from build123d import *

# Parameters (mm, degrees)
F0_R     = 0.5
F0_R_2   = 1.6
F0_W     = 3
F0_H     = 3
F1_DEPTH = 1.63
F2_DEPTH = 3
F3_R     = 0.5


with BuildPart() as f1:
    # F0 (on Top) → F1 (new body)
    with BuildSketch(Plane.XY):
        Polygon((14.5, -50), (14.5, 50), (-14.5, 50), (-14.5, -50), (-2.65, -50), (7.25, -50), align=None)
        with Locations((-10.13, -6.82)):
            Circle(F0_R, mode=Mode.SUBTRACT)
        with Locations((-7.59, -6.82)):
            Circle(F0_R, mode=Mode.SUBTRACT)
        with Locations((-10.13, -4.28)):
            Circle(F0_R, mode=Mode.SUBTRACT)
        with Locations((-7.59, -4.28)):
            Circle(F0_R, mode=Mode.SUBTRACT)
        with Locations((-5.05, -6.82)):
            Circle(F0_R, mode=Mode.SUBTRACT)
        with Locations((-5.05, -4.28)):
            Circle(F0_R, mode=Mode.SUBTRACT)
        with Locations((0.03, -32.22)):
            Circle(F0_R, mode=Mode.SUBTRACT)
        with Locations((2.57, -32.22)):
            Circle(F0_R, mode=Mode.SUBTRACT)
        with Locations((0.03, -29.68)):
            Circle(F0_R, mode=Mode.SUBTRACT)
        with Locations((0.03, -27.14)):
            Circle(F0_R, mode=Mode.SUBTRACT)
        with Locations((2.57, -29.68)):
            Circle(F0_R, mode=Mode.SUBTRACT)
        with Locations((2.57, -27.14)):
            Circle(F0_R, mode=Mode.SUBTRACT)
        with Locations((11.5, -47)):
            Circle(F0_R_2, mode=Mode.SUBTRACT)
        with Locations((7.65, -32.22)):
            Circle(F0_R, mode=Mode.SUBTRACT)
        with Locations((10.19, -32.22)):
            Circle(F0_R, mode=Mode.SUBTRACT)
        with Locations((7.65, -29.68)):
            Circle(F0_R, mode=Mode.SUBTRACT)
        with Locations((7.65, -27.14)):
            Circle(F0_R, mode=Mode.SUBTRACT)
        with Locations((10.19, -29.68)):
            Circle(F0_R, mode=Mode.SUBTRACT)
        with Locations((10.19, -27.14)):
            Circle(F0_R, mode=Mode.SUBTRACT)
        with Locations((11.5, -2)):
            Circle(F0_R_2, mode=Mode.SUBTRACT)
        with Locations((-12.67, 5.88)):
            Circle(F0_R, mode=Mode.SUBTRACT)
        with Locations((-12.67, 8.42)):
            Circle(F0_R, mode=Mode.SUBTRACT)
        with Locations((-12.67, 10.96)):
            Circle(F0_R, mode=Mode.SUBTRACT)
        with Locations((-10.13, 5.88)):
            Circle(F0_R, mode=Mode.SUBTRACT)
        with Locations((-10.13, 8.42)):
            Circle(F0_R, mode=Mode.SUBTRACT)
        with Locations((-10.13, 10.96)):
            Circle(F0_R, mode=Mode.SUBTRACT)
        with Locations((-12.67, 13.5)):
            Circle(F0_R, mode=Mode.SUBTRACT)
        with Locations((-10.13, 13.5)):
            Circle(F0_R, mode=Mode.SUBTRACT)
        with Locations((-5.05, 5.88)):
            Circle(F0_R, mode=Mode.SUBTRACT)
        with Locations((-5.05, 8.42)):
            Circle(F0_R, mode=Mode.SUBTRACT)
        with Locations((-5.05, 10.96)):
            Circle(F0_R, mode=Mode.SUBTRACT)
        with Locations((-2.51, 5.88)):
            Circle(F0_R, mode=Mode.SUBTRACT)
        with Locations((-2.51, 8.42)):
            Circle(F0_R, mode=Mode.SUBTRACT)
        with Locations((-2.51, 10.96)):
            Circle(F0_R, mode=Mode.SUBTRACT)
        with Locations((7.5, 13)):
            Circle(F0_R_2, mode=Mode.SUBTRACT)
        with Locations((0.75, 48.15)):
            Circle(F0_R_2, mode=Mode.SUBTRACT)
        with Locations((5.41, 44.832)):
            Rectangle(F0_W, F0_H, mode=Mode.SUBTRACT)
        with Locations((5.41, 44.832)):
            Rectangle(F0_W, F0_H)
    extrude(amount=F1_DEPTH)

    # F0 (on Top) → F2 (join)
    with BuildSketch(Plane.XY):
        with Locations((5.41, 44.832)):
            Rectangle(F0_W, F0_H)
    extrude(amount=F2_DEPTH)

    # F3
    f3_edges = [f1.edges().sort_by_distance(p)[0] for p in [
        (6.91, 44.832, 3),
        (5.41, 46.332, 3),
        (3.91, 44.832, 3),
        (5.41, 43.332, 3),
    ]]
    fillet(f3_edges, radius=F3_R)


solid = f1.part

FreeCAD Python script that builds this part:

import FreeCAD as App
import Part
import Sketcher
Q = App.Units.Quantity


def edges_at(feature, points):
    """Names of the edges that pass closest to the given points."""
    edges = feature.Shape.Edges
    near = lambda p: min(range(len(edges)), key=lambda i: edges[i].distToShape(Part.Vertex(*p))[0])
    return sorted({f"Edge{near(p) + 1}" for p in points})


def add_polygon(sketch, points):
    """Adds a closed chain of lines whose ends are joined by coincident constraints."""
    first, n = sketch.GeometryCount, len(points)
    for a, b in zip(points, points[1:] + points[:1]):
        sketch.addGeometry(Part.LineSegment(App.Vector(*a, 0), App.Vector(*b, 0)), False)
    for i in range(n):
        sketch.addConstraint(Sketcher.Constraint("Coincident", first + i, 2, first + (i + 1) % n, 1))

doc = App.newDocument("Part")
body = doc.addObject("PartDesign::Body", "Body")

sketch1 = body.newObject("Sketcher::SketchObject", "Sketch")
sketch1.AttachmentSupport = (doc.getObject("XY_Plane"), [""])
sketch1.MapMode = "FlatFace"
add_polygon(sketch1, [(14.5, -50), (14.5, 50), (-14.5, 50), (-14.5, -50)])
sketch1.addGeometry(Part.Circle(App.Vector(-10.1, -6.8, 0), App.Vector(0, 0, 1), 0.5), False)
sketch1.addGeometry(Part.Circle(App.Vector(-10.1, -4.3, 0), App.Vector(0, 0, 1), 0.5), False)
sketch1.addGeometry(Part.Circle(App.Vector(-7.6, -6.8, 0), App.Vector(0, 0, 1), 0.5), False)
sketch1.addGeometry(Part.Circle(App.Vector(-7.6, -4.3, 0), App.Vector(0, 0, 1), 0.5), False)
sketch1.addGeometry(Part.Circle(App.Vector(-5, -6.8, 0), App.Vector(0, 0, 1), 0.5), False)
sketch1.addGeometry(Part.Circle(App.Vector(-5, -4.3, 0), App.Vector(0, 0, 1), 0.5), False)
sketch1.addGeometry(Part.Circle(App.Vector(0, -32.2, 0), App.Vector(0, 0, 1), 0.5), False)
sketch1.addGeometry(Part.Circle(App.Vector(2.6, -32.2, 0), App.Vector(0, 0, 1), 0.5), False)
sketch1.addGeometry(Part.Circle(App.Vector(0, -29.7, 0), App.Vector(0, 0, 1), 0.5), False)
sketch1.addGeometry(Part.Circle(App.Vector(0, -27.1, 0), App.Vector(0, 0, 1), 0.5), False)
sketch1.addGeometry(Part.Circle(App.Vector(2.6, -29.7, 0), App.Vector(0, 0, 1), 0.5), False)
sketch1.addGeometry(Part.Circle(App.Vector(2.6, -27.1, 0), App.Vector(0, 0, 1), 0.5), False)
sketch1.addGeometry(Part.Circle(App.Vector(11.5, -47, 0), App.Vector(0, 0, 1), 1.6), False)
sketch1.addGeometry(Part.Circle(App.Vector(7.7, -32.2, 0), App.Vector(0, 0, 1), 0.5), False)
sketch1.addGeometry(Part.Circle(App.Vector(7.7, -29.7, 0), App.Vector(0, 0, 1), 0.5), False)
sketch1.addGeometry(Part.Circle(App.Vector(7.7, -27.1, 0), App.Vector(0, 0, 1), 0.5), False)
sketch1.addGeometry(Part.Circle(App.Vector(10.2, -32.2, 0), App.Vector(0, 0, 1), 0.5), False)
sketch1.addGeometry(Part.Circle(App.Vector(10.2, -29.7, 0), App.Vector(0, 0, 1), 0.5), False)
sketch1.addGeometry(Part.Circle(App.Vector(10.2, -27.1, 0), App.Vector(0, 0, 1), 0.5), False)
sketch1.addGeometry(Part.Circle(App.Vector(11.5, -2, 0), App.Vector(0, 0, 1), 1.6), False)
sketch1.addGeometry(Part.Circle(App.Vector(-12.7, 5.9, 0), App.Vector(0, 0, 1), 0.5), False)
sketch1.addGeometry(Part.Circle(App.Vector(-10.1, 5.9, 0), App.Vector(0, 0, 1), 0.5), False)
sketch1.addGeometry(Part.Circle(App.Vector(-12.7, 8.4, 0), App.Vector(0, 0, 1), 0.5), False)
sketch1.addGeometry(Part.Circle(App.Vector(-12.7, 11, 0), App.Vector(0, 0, 1), 0.5), False)
sketch1.addGeometry(Part.Circle(App.Vector(-10.1, 8.4, 0), App.Vector(0, 0, 1), 0.5), False)
sketch1.addGeometry(Part.Circle(App.Vector(-10.1, 11, 0), App.Vector(0, 0, 1), 0.5), False)
sketch1.addGeometry(Part.Circle(App.Vector(-12.7, 13.5, 0), App.Vector(0, 0, 1), 0.5), False)
sketch1.addGeometry(Part.Circle(App.Vector(-10.1, 13.5, 0), App.Vector(0, 0, 1), 0.5), False)
sketch1.addGeometry(Part.Circle(App.Vector(-5, 5.9, 0), App.Vector(0, 0, 1), 0.5), False)
sketch1.addGeometry(Part.Circle(App.Vector(-5, 8.4, 0), App.Vector(0, 0, 1), 0.5), False)
sketch1.addGeometry(Part.Circle(App.Vector(-5, 11, 0), App.Vector(0, 0, 1), 0.5), False)
sketch1.addGeometry(Part.Circle(App.Vector(-2.5, 5.9, 0), App.Vector(0, 0, 1), 0.5), False)
sketch1.addGeometry(Part.Circle(App.Vector(-2.5, 8.4, 0), App.Vector(0, 0, 1), 0.5), False)
sketch1.addGeometry(Part.Circle(App.Vector(-2.5, 11, 0), App.Vector(0, 0, 1), 0.5), False)
sketch1.addGeometry(Part.Circle(App.Vector(7.5, 13, 0), App.Vector(0, 0, 1), 1.6), False)
sketch1.addGeometry(Part.Circle(App.Vector(0.8, 48.1, 0), App.Vector(0, 0, 1), 1.6), False)
sketch1.addConstraint(Sketcher.Constraint("Vertical", 0))
sketch1.addConstraint(Sketcher.Constraint("Horizontal", 1))
sketch1.addConstraint(Sketcher.Constraint("Vertical", 2))
sketch1.addConstraint(Sketcher.Constraint("Horizontal", 3))
sketch1.addConstraint(Sketcher.Constraint("Equal", 4, 5))
sketch1.addConstraint(Sketcher.Constraint("Equal", 5, 6))
sketch1.addConstraint(Sketcher.Constraint("Equal", 6, 7))
sketch1.addConstraint(Sketcher.Constraint("Equal", 7, 8))
sketch1.addConstraint(Sketcher.Constraint("Equal", 8, 9))
sketch1.addConstraint(Sketcher.Constraint("Equal", 9, 10))
sketch1.addConstraint(Sketcher.Constraint("Equal", 10, 11))
sketch1.addConstraint(Sketcher.Constraint("Equal", 11, 12))
sketch1.addConstraint(Sketcher.Constraint("Equal", 12, 13))
sketch1.addConstraint(Sketcher.Constraint("Equal", 13, 14))
sketch1.addConstraint(Sketcher.Constraint("Equal", 14, 15))
sketch1.addConstraint(Sketcher.Constraint("Equal", 15, 17))
sketch1.addConstraint(Sketcher.Constraint("Equal", 17, 18))
sketch1.addConstraint(Sketcher.Constraint("Equal", 18, 19))
sketch1.addConstraint(Sketcher.Constraint("Equal", 19, 20))
sketch1.addConstraint(Sketcher.Constraint("Equal", 20, 21))
sketch1.addConstraint(Sketcher.Constraint("Equal", 21, 22))
sketch1.addConstraint(Sketcher.Constraint("Equal", 16, 23))
sketch1.addConstraint(Sketcher.Constraint("Equal", 22, 24))
sketch1.addConstraint(Sketcher.Constraint("Equal", 24, 25))
sketch1.addConstraint(Sketcher.Constraint("Equal", 25, 26))
sketch1.addConstraint(Sketcher.Constraint("Equal", 26, 27))
sketch1.addConstraint(Sketcher.Constraint("Equal", 27, 28))
sketch1.addConstraint(Sketcher.Constraint("Equal", 28, 29))
sketch1.addConstraint(Sketcher.Constraint("Equal", 29, 30))
sketch1.addConstraint(Sketcher.Constraint("Equal", 30, 31))
sketch1.addConstraint(Sketcher.Constraint("Equal", 31, 32))
sketch1.addConstraint(Sketcher.Constraint("Equal", 32, 33))
sketch1.addConstraint(Sketcher.Constraint("Equal", 33, 34))
sketch1.addConstraint(Sketcher.Constraint("Equal", 34, 35))
sketch1.addConstraint(Sketcher.Constraint("Equal", 35, 36))
sketch1.addConstraint(Sketcher.Constraint("Equal", 36, 37))
sketch1.addConstraint(Sketcher.Constraint("Equal", 23, 38))
sketch1.addConstraint(Sketcher.Constraint("Equal", 38, 39))
sketch1.addConstraint(Sketcher.Constraint("Symmetric", 0, 2, 2, 2, -1, 1))
sketch1.addConstraint(Sketcher.Constraint("Horizontal", 4, 3, 6, 3))
sketch1.addConstraint(Sketcher.Constraint("Horizontal", 5, 3, 7, 3))
sketch1.addConstraint(Sketcher.Constraint("Horizontal", 6, 3, 8, 3))
sketch1.addConstraint(Sketcher.Constraint("Horizontal", 7, 3, 9, 3))
sketch1.addConstraint(Sketcher.Constraint("Horizontal", 10, 3, 11, 3))
sketch1.addConstraint(Sketcher.Constraint("Horizontal", 12, 3, 14, 3))
sketch1.addConstraint(Sketcher.Constraint("Horizontal", 13, 3, 15, 3))
sketch1.addConstraint(Sketcher.Constraint("Horizontal", 11, 3, 17, 3))
sketch1.addConstraint(Sketcher.Constraint("Horizontal", 14, 3, 18, 3))
sketch1.addConstraint(Sketcher.Constraint("Horizontal", 15, 3, 19, 3))
sketch1.addConstraint(Sketcher.Constraint("Horizontal", 17, 3, 20, 3))
sketch1.addConstraint(Sketcher.Constraint("Horizontal", 18, 3, 21, 3))
sketch1.addConstraint(Sketcher.Constraint("Horizontal", 19, 3, 22, 3))
sketch1.addConstraint(Sketcher.Constraint("Horizontal", 24, 3, 25, 3))
sketch1.addConstraint(Sketcher.Constraint("Horizontal", 26, 3, 28, 3))
sketch1.addConstraint(Sketcher.Constraint("Horizontal", 27, 3, 29, 3))
sketch1.addConstraint(Sketcher.Constraint("Horizontal", 30, 3, 31, 3))
sketch1.addConstraint(Sketcher.Constraint("Horizontal", 25, 3, 32, 3))
sketch1.addConstraint(Sketcher.Constraint("Horizontal", 28, 3, 33, 3))
sketch1.addConstraint(Sketcher.Constraint("Horizontal", 29, 3, 34, 3))
sketch1.addConstraint(Sketcher.Constraint("Horizontal", 32, 3, 35, 3))
sketch1.addConstraint(Sketcher.Constraint("Horizontal", 33, 3, 36, 3))
sketch1.addConstraint(Sketcher.Constraint("Horizontal", 34, 3, 37, 3))
sketch1.addConstraint(Sketcher.Constraint("Vertical", 4, 3, 5, 3))
sketch1.addConstraint(Sketcher.Constraint("Vertical", 6, 3, 7, 3))
sketch1.addConstraint(Sketcher.Constraint("Vertical", 8, 3, 9, 3))
sketch1.addConstraint(Sketcher.Constraint("Vertical", 10, 3, 12, 3))
sketch1.addConstraint(Sketcher.Constraint("Vertical", 12, 3, 13, 3))
sketch1.addConstraint(Sketcher.Constraint("Vertical", 11, 3, 14, 3))
sketch1.addConstraint(Sketcher.Constraint("Vertical", 14, 3, 15, 3))
sketch1.addConstraint(Sketcher.Constraint("Vertical", 17, 3, 18, 3))
sketch1.addConstraint(Sketcher.Constraint("Vertical", 18, 3, 19, 3))
sketch1.addConstraint(Sketcher.Constraint("Vertical", 20, 3, 21, 3))
sketch1.addConstraint(Sketcher.Constraint("Vertical", 21, 3, 22, 3))
sketch1.addConstraint(Sketcher.Constraint("Vertical", 16, 3, 23, 3))
sketch1.addConstraint(Sketcher.Constraint("Vertical", 5, 3, 25, 3))
sketch1.addConstraint(Sketcher.Constraint("Vertical", 24, 3, 26, 3))
sketch1.addConstraint(Sketcher.Constraint("Vertical", 26, 3, 27, 3))
sketch1.addConstraint(Sketcher.Constraint("Vertical", 25, 3, 28, 3))
sketch1.addConstraint(Sketcher.Constraint("Vertical", 28, 3, 29, 3))
sketch1.addConstraint(Sketcher.Constraint("Vertical", 27, 3, 30, 3))
sketch1.addConstraint(Sketcher.Constraint("Vertical", 29, 3, 31, 3))
sketch1.addConstraint(Sketcher.Constraint("Vertical", 9, 3, 32, 3))
sketch1.addConstraint(Sketcher.Constraint("Vertical", 32, 3, 33, 3))
sketch1.addConstraint(Sketcher.Constraint("Vertical", 33, 3, 34, 3))
sketch1.addConstraint(Sketcher.Constraint("Vertical", 35, 3, 36, 3))
sketch1.addConstraint(Sketcher.Constraint("Vertical", 36, 3, 37, 3))
sketch1.addConstraint(Sketcher.Constraint("Diameter", 4, Q("1 mm")))
sketch1.addConstraint(Sketcher.Constraint("Diameter", 16, Q("3.2 mm")))
sketch1.addConstraint(Sketcher.Constraint("DistanceX", 1, 2, 1, 1, Q("29 mm")))
sketch1.addConstraint(Sketcher.Constraint("DistanceY", 0, 1, 0, 2, Q("100 mm")))
sketch1.addConstraint(Sketcher.Constraint("DistanceY", 16, 3, -1, 1, Q("47 mm")))
sketch1.addConstraint(Sketcher.Constraint("DistanceY", 23, 3, -1, 1, Q("2 mm")))
sketch1.addConstraint(Sketcher.Constraint("DistanceY", -1, 1, 38, 3, Q("13 mm")))
sketch1.addConstraint(Sketcher.Constraint("DistanceX", 38, 3, 0, 2, Q("7 mm")))
sketch1.addConstraint(Sketcher.Constraint("DistanceX", 2, 2, 16, 3, Q("26 mm")))
sketch1.addConstraint(Sketcher.Constraint("DistanceY", -1, 1, 30, 3, Q("13.5 mm")))
sketch1.addConstraint(Sketcher.Constraint("DistanceY", 10, 3, 8, 3, Q("25.4 mm")))
sketch1.addConstraint(Sketcher.Constraint("DistanceX", 4, 3, 11, 3, Q("12.7 mm")))
sketch1.addConstraint(Sketcher.Constraint("DistanceY", 4, 3, 24, 3, Q("12.7 mm")))
sketch1.addConstraint(Sketcher.Constraint("DistanceY", 5, 3, 26, 3, Q("12.7 mm")))
sketch1.addConstraint(Sketcher.Constraint("DistanceX", 34, 3, 39, 3, Q("5.8 mm")))
sketch1.addConstraint(Sketcher.Constraint("DistanceX", 4, 3, -1, 1, Q("10.13 mm")))
sketch1.addConstraint(Sketcher.Constraint("DistanceY", 4, 3, -1, 1, Q("6.82 mm")))
sketch1.addConstraint(Sketcher.Constraint("DistanceY", 5, 3, -1, 1, Q("4.28 mm")))
sketch1.addConstraint(Sketcher.Constraint("DistanceX", 6, 3, -1, 1, Q("7.59 mm")))
sketch1.addConstraint(Sketcher.Constraint("DistanceX", 8, 3, -1, 1, Q("5.05 mm")))
sketch1.addConstraint(Sketcher.Constraint("DistanceX", -1, 1, 10, 3, Q("0.03 mm")))
sketch1.addConstraint(Sketcher.Constraint("DistanceY", 12, 3, -1, 1, Q("29.68 mm")))
sketch1.addConstraint(Sketcher.Constraint("DistanceY", 13, 3, -1, 1, Q("27.14 mm")))
sketch1.addConstraint(Sketcher.Constraint("DistanceX", -1, 1, 17, 3, Q("7.65 mm")))
sketch1.addConstraint(Sketcher.Constraint("DistanceX", -1, 1, 20, 3, Q("10.19 mm")))
sketch1.addConstraint(Sketcher.Constraint("DistanceX", 24, 3, -1, 1, Q("12.67 mm")))
sketch1.addConstraint(Sketcher.Constraint("DistanceY", -1, 1, 27, 3, Q("10.96 mm")))
sketch1.addConstraint(Sketcher.Constraint("DistanceX", 35, 3, -1, 1, Q("2.51 mm")))
sketch1.addConstraint(Sketcher.Constraint("DistanceY", -1, 1, 39, 3, Q("48.15 mm")))
pad1 = body.newObject("PartDesign::Pad", "Pad")
pad1.Profile = sketch1
pad1.Length = 1.63

sketch2 = body.newObject("Sketcher::SketchObject", "Sketch001")
sketch2.AttachmentSupport = (doc.getObject("XY_Plane"), [""])
sketch2.MapMode = "FlatFace"
add_polygon(sketch2, [(3.9, 46.3), (3.9, 43.3), (6.9, 43.3), (6.9, 46.3)])
sketch2.addConstraint(Sketcher.Constraint("Vertical", 0))
sketch2.addConstraint(Sketcher.Constraint("Horizontal", 1))
sketch2.addConstraint(Sketcher.Constraint("Vertical", 2))
sketch2.addConstraint(Sketcher.Constraint("Horizontal", 3))
sketch2.addConstraint(Sketcher.Constraint("Equal", 3, 0))
sketch2.addConstraint(Sketcher.Constraint("DistanceX", 1, 1, 1, 2, Q("3 mm")))
sketch2.addConstraint(Sketcher.Constraint("DistanceX", -1, 1, 0, 2, Q("3.91 mm")))
sketch2.addConstraint(Sketcher.Constraint("DistanceY", -1, 1, 0, 2, Q("43.332 mm")))
pad2 = body.newObject("PartDesign::Pad", "Pad001")
pad2.Profile = sketch2
pad2.Length = 3
doc.recompute()

fillet = body.newObject("PartDesign::Fillet", "Fillet")
fillet.Base = (pad2, edges_at(pad2, [
    (6.91, 44.832, 3),
    (5.41, 46.332, 3),
    (3.91, 44.832, 3),
    (5.41, 43.332, 3),
]))
fillet.Radius = 0.5

doc.recompute()
